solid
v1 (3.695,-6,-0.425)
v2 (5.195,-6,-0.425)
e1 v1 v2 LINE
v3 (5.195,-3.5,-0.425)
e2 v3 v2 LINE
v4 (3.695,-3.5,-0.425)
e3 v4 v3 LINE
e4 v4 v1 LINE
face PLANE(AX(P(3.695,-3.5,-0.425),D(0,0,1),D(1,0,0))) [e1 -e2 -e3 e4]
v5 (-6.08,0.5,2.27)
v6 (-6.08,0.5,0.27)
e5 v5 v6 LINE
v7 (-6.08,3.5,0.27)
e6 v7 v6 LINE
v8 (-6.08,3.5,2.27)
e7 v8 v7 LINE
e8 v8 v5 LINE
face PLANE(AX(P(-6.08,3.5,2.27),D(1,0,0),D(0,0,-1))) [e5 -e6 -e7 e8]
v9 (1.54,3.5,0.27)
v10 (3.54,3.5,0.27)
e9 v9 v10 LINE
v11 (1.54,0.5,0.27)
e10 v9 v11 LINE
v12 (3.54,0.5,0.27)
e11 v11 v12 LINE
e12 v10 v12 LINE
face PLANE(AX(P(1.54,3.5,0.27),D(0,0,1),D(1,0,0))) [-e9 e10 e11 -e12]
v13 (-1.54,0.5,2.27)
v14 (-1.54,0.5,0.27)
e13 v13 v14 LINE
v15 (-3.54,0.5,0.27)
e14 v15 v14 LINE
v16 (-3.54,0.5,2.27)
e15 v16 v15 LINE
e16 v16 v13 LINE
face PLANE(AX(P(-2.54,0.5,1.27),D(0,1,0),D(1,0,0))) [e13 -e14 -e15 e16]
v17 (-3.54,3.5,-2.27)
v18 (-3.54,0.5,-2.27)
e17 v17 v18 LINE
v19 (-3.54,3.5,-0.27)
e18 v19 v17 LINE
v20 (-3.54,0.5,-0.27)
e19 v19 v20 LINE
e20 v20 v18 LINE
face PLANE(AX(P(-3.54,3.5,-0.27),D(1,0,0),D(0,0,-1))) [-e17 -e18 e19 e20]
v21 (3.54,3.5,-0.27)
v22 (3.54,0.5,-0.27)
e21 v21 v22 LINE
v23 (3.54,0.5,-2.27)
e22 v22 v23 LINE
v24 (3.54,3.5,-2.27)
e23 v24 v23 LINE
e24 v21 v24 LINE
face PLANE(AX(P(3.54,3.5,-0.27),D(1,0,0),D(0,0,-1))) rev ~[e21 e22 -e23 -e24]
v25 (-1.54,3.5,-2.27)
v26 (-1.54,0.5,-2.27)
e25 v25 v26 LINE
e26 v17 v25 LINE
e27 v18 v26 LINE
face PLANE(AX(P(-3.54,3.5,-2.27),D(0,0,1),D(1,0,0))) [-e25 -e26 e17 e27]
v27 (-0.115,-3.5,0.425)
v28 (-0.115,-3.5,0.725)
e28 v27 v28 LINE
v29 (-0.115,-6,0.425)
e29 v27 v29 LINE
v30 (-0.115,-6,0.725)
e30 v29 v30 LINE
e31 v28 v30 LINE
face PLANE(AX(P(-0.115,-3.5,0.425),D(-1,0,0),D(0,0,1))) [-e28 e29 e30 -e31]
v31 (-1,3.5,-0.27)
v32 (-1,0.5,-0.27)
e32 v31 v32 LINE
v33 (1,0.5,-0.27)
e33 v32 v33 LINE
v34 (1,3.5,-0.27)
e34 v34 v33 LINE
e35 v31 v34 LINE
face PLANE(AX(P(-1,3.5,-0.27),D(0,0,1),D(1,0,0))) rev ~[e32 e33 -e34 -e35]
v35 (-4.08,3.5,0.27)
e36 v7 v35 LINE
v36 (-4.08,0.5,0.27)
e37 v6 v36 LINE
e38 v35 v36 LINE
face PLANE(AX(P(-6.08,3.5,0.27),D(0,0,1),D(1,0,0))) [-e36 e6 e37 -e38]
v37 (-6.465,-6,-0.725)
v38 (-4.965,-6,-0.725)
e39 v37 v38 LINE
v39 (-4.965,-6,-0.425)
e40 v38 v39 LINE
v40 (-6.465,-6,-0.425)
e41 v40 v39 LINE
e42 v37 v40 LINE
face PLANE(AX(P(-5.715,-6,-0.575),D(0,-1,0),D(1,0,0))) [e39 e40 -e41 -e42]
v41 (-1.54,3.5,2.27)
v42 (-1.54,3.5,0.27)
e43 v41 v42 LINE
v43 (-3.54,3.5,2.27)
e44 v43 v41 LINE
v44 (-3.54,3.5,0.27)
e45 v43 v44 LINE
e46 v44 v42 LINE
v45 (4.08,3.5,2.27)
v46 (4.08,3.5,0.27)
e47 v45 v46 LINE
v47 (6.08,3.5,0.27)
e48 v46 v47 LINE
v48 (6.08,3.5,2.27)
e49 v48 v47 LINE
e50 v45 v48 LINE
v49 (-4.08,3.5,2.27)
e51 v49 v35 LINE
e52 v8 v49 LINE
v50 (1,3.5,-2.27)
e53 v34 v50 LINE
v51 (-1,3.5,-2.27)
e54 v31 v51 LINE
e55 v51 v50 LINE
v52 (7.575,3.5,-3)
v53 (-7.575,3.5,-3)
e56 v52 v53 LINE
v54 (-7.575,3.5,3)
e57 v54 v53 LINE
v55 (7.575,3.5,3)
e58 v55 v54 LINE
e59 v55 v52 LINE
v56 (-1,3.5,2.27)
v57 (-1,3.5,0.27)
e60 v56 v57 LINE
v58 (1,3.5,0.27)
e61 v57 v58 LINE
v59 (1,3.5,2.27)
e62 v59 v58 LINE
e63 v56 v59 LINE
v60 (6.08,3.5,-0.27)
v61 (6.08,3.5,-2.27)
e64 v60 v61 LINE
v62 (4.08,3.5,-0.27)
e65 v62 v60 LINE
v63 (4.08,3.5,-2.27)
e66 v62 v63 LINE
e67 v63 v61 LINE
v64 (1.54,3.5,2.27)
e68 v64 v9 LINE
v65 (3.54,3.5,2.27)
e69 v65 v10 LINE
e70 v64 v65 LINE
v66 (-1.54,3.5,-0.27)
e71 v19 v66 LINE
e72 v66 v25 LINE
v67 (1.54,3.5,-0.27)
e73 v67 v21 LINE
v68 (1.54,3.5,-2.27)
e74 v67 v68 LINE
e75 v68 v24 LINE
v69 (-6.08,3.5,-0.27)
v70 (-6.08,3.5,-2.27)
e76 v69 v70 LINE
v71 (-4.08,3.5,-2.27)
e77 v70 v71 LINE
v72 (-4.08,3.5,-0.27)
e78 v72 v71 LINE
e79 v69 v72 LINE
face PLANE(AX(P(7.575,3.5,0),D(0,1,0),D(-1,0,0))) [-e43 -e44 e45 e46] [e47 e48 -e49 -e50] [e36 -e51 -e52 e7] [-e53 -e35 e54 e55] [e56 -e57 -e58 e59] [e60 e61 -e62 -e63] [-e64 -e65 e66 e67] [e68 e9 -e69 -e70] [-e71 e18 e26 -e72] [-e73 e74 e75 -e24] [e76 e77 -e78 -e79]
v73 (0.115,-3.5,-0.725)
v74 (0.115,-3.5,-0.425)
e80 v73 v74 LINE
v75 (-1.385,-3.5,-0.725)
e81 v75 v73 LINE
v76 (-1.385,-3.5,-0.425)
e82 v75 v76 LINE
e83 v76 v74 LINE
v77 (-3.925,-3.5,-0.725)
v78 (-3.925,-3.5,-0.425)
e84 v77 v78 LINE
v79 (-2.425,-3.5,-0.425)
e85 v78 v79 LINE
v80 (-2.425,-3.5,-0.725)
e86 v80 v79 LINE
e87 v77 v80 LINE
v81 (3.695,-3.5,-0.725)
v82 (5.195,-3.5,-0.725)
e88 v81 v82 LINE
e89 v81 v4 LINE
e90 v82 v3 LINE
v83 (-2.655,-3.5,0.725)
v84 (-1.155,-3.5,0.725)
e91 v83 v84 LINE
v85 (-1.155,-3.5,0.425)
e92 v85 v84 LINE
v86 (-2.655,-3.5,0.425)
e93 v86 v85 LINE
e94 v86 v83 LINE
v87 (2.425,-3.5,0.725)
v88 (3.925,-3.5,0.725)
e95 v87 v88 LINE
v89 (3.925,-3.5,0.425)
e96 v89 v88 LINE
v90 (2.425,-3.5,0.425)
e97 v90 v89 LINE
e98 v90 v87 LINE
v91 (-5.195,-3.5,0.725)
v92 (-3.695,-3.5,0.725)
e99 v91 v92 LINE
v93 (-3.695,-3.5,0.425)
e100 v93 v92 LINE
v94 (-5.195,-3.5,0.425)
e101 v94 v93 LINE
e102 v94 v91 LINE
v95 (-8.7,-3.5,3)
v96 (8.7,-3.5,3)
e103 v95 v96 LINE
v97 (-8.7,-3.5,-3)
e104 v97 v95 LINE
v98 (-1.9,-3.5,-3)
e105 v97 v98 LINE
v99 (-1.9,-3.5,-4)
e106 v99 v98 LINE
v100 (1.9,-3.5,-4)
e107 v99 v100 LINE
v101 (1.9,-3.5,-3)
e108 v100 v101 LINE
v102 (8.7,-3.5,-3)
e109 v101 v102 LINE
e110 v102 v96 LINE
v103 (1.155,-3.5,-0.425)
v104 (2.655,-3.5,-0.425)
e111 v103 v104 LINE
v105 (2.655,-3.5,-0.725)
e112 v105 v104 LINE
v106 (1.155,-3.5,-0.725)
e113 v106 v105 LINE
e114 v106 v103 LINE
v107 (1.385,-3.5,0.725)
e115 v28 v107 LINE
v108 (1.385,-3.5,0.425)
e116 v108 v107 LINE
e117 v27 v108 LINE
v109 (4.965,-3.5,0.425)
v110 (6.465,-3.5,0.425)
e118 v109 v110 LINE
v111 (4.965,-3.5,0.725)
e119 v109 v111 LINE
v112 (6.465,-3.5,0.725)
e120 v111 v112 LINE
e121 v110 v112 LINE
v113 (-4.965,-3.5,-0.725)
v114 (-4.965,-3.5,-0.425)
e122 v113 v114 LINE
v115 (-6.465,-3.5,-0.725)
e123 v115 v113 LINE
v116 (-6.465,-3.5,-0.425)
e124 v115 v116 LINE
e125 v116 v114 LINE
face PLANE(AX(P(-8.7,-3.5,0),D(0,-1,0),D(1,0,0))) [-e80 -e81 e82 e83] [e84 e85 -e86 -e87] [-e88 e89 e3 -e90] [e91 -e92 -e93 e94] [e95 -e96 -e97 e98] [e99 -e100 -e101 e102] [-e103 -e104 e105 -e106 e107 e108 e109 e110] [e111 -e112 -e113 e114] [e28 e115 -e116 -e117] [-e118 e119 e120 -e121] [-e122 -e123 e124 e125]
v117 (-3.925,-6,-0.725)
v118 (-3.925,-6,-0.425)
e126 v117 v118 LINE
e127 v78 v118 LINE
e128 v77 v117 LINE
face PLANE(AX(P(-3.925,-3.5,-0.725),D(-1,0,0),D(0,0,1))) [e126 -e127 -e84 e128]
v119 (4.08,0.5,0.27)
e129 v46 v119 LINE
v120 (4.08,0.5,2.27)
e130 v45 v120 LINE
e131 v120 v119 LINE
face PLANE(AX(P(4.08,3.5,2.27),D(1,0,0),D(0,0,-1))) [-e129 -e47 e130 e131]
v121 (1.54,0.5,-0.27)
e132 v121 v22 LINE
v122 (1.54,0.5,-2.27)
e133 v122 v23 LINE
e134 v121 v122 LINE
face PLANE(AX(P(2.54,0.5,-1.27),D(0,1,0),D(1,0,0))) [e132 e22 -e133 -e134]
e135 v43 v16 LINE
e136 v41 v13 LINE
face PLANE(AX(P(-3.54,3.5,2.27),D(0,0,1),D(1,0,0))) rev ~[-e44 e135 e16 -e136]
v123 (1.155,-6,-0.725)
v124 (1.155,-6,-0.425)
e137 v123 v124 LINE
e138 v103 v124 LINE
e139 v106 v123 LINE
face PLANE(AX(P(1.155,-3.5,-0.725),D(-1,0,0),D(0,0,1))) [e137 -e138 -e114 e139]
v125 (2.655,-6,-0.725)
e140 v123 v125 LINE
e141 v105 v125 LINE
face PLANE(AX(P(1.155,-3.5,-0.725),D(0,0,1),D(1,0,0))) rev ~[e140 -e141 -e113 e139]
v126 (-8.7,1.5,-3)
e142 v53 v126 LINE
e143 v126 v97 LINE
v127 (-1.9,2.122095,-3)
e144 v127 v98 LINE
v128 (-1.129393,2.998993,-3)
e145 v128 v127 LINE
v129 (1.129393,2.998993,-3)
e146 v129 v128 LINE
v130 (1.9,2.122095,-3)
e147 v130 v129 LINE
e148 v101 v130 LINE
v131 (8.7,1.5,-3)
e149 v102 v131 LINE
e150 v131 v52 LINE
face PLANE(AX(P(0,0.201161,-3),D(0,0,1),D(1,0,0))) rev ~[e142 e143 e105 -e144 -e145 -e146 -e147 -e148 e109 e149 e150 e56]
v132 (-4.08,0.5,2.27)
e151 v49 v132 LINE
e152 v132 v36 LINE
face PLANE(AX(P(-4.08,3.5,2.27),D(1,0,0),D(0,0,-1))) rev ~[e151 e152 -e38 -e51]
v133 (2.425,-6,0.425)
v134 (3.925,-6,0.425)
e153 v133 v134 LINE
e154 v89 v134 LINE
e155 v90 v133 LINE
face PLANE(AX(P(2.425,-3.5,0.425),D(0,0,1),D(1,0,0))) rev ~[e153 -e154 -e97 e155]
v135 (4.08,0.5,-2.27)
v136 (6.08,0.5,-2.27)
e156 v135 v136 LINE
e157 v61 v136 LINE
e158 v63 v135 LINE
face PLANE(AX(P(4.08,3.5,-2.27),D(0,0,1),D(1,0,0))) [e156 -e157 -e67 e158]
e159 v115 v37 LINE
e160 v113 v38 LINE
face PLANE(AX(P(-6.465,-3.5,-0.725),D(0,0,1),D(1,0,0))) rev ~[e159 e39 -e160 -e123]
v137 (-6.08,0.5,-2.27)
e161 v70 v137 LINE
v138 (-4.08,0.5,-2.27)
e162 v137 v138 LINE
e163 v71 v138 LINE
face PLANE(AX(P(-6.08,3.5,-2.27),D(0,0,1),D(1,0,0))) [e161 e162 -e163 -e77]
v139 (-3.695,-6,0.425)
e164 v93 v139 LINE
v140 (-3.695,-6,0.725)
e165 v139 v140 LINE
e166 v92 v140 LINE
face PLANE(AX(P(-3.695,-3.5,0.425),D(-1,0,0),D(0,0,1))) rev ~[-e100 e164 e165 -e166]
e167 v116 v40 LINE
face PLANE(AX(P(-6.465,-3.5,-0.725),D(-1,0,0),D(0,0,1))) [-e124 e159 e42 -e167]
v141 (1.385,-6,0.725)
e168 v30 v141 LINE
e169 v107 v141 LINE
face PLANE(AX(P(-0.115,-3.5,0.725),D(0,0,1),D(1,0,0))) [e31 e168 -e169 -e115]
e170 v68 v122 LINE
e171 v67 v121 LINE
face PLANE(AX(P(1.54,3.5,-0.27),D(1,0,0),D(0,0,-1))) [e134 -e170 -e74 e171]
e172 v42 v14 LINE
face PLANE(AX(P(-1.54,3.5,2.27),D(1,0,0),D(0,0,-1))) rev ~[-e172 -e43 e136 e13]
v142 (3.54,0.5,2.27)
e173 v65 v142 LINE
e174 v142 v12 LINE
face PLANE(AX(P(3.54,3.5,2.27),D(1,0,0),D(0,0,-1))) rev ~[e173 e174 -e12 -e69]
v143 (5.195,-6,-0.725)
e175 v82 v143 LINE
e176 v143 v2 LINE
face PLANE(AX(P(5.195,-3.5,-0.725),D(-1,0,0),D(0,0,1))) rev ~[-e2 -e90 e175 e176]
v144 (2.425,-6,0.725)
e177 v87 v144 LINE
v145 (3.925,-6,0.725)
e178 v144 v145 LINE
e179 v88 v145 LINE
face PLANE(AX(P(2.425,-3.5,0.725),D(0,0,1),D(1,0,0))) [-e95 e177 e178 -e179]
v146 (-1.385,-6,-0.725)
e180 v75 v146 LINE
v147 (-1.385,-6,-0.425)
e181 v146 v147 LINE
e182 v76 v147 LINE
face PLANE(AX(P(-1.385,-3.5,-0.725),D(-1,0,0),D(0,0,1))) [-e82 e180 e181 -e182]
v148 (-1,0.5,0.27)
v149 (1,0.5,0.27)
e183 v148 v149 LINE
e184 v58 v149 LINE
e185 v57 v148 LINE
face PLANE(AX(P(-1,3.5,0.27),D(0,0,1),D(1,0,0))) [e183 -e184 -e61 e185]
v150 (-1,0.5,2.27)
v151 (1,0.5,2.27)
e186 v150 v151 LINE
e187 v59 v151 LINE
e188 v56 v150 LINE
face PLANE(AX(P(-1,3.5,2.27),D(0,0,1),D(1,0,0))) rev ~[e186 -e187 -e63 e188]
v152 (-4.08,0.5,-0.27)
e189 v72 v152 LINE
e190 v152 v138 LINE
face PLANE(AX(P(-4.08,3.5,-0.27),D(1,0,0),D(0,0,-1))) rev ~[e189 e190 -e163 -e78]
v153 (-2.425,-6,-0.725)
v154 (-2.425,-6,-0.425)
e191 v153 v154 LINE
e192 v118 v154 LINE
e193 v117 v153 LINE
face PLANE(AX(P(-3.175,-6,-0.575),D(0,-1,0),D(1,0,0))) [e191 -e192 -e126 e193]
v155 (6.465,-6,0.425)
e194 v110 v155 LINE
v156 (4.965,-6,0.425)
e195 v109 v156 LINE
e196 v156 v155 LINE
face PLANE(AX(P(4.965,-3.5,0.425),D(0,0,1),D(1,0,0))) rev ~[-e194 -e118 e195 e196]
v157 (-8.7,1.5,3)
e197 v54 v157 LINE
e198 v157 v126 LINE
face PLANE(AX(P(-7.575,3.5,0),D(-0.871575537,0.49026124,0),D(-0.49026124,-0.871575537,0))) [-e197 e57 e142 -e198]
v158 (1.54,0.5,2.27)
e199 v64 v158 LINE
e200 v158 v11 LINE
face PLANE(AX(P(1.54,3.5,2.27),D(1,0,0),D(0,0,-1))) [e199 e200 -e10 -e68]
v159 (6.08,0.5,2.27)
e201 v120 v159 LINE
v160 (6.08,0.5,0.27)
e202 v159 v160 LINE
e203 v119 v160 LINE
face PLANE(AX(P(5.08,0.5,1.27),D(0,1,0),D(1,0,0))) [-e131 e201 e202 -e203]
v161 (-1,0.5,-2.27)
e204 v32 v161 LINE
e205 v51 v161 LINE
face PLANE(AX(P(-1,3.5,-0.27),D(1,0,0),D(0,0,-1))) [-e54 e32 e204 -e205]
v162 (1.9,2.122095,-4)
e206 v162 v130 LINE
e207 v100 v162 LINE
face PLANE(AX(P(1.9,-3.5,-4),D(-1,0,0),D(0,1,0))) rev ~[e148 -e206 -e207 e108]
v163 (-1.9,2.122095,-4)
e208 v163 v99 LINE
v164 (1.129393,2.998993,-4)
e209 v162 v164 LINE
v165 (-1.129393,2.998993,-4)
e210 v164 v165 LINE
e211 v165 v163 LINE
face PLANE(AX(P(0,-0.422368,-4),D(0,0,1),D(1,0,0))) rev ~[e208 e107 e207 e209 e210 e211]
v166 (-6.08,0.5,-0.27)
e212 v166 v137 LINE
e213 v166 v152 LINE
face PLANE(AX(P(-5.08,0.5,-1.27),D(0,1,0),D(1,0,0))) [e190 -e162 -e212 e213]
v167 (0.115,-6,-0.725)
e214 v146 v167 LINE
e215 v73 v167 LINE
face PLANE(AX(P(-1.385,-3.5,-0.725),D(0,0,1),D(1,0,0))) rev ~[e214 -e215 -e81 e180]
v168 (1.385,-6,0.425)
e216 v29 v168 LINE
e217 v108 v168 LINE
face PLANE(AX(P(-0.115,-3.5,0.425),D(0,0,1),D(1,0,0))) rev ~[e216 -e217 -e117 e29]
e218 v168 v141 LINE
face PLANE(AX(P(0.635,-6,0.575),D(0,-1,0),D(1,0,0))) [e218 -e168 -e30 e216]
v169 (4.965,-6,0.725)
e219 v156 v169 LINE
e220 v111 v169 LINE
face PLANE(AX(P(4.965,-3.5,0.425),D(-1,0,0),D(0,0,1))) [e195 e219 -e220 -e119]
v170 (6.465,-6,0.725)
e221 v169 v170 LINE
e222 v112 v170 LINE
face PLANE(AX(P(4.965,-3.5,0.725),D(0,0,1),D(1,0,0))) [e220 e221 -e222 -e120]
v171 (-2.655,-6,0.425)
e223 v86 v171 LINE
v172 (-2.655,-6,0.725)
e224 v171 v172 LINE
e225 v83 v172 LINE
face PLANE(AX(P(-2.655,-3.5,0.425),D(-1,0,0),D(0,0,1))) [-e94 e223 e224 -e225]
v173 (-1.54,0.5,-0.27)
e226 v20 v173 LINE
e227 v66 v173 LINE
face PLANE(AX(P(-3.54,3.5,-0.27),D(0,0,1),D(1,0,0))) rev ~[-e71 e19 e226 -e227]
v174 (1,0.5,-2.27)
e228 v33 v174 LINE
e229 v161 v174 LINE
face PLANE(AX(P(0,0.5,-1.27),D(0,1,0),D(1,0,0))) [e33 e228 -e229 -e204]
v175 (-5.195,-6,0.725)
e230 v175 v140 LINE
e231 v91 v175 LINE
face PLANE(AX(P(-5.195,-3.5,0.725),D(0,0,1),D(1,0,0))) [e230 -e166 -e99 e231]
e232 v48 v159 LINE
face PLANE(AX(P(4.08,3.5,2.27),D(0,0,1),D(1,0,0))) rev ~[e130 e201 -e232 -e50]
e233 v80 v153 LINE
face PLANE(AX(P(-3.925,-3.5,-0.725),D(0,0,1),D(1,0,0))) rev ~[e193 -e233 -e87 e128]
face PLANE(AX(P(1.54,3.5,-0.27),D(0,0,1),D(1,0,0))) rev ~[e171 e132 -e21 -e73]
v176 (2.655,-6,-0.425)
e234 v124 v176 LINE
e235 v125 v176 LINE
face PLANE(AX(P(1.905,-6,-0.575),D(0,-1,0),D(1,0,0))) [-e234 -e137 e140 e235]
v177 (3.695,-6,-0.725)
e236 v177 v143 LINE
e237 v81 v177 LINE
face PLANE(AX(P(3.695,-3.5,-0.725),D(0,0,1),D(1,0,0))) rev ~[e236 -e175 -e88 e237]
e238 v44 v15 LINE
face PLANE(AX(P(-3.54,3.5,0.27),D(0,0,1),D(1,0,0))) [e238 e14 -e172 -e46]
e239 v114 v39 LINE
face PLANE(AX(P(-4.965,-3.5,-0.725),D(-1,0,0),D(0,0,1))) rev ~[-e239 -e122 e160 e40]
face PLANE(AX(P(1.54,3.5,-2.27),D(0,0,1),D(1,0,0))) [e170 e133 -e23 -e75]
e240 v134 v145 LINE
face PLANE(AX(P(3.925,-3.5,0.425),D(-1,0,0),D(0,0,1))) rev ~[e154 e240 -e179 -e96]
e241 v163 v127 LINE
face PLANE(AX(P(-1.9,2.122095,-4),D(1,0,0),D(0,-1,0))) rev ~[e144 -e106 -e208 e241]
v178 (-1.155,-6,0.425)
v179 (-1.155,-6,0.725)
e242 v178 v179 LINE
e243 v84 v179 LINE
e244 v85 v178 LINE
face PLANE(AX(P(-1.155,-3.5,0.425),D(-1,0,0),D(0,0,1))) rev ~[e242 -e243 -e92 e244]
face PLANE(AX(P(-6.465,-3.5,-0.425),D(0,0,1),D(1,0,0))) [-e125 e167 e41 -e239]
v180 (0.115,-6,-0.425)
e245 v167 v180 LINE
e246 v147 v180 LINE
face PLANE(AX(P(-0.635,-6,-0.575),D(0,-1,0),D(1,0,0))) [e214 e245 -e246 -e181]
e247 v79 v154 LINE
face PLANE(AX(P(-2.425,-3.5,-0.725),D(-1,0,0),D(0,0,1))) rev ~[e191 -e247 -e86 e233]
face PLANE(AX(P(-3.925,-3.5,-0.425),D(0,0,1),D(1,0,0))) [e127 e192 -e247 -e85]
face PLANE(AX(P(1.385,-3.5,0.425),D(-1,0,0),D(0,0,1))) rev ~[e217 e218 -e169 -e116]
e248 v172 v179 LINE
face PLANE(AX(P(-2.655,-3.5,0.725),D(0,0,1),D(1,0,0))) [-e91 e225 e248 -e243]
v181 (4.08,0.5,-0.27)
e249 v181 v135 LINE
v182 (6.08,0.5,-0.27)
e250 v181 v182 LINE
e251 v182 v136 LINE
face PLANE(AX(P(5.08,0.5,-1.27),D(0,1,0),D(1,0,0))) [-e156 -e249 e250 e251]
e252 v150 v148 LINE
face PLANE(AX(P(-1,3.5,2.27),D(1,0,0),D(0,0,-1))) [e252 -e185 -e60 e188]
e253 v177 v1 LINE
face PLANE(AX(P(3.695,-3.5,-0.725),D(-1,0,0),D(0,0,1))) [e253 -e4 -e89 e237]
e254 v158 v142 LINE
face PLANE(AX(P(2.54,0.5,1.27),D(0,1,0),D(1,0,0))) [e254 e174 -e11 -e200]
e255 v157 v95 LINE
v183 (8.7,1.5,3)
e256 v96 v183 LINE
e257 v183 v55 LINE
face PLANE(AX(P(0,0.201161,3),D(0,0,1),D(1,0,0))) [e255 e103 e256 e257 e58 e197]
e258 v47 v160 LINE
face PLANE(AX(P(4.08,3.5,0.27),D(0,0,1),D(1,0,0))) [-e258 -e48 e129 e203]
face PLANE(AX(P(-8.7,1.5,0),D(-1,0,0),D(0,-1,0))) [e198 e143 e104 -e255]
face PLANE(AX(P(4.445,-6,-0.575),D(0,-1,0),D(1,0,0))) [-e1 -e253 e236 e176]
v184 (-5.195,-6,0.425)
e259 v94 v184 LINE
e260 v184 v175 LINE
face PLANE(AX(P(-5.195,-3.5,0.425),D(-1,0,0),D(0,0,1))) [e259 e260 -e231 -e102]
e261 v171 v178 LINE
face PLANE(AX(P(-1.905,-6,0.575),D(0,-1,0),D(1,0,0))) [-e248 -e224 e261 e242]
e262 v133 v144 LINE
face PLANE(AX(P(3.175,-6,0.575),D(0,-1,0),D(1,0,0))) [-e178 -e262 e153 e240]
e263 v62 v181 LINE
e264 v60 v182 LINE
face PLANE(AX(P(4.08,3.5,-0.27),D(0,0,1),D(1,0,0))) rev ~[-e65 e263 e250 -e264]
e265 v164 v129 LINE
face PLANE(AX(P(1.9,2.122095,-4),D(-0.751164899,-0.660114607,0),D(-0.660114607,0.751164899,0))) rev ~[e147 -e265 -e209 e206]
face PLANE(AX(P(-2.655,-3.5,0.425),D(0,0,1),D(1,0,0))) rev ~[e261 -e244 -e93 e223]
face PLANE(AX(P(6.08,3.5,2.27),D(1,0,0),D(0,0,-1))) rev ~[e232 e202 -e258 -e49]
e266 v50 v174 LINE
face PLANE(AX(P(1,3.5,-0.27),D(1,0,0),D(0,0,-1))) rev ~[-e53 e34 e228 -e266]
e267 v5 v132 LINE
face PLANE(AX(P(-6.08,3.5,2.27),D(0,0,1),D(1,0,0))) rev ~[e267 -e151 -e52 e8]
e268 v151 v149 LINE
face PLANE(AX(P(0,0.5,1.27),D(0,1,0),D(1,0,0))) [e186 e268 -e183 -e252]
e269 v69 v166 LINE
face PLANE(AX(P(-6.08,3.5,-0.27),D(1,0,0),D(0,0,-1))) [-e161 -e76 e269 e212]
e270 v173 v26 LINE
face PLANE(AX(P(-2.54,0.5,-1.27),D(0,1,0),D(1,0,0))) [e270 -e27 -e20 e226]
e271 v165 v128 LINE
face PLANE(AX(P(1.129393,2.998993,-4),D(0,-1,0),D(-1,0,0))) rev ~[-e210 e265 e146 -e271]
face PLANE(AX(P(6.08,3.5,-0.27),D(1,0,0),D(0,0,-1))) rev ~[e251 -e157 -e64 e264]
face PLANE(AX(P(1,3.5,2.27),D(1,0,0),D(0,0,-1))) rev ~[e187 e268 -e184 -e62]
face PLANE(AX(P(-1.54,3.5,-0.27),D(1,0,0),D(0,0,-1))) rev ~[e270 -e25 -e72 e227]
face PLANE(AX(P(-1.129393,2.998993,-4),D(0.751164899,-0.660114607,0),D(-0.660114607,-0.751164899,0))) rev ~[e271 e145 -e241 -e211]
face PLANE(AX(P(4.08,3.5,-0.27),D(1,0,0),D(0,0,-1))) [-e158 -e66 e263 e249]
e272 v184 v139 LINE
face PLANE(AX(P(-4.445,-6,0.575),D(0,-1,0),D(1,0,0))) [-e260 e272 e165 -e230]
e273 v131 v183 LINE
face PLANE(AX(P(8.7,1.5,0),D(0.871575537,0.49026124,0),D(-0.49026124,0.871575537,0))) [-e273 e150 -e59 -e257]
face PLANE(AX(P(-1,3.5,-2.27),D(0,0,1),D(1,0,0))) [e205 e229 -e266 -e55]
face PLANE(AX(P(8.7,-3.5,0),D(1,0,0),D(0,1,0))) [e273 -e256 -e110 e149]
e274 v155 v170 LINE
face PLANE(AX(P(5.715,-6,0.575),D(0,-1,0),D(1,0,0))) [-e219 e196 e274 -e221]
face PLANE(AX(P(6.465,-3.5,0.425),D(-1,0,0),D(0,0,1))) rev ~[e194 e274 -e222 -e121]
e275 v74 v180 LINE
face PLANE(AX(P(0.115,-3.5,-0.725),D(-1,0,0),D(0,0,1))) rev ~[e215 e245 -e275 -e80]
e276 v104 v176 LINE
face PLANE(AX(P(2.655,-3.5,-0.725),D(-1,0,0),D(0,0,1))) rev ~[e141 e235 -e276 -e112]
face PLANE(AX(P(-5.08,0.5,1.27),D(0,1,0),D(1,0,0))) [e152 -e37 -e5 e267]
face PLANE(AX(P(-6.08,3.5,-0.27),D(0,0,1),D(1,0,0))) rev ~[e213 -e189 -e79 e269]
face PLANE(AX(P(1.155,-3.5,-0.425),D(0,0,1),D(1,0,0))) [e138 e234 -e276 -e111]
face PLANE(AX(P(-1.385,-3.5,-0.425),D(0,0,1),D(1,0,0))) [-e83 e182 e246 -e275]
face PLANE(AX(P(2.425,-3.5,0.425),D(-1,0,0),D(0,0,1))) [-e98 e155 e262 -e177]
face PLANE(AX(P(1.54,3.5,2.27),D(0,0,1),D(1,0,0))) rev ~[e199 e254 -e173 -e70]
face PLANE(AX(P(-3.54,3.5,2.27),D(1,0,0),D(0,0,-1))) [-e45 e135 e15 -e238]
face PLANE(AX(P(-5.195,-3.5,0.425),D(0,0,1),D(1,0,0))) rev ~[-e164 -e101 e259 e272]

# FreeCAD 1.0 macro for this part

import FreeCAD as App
import Part
import Sketcher
Q = App.Units.Quantity

doc = App.newDocument("Part")
body = doc.addObject("PartDesign::Body", "Body")

sketch1 = body.newObject("Sketcher::SketchObject", "Sketch")
sketch1.AttachmentSupport = (doc.getObject("XY_Plane"), [""])
sketch1.MapMode = "FlatFace"
sketch1.addGeometry(Part.LineSegment(App.Vector(-8.7, 1.5, 0), App.Vector(-8.7, -3.5, 0)), False)
sketch1.addGeometry(Part.LineSegment(App.Vector(-8.7, -3.5, 0), App.Vector(8.7, -3.5, 0)), False)
sketch1.addGeometry(Part.LineSegment(App.Vector(8.7, -3.5, 0), App.Vector(8.7, 1.5, 0)), False)
sketch1.addGeometry(Part.LineSegment(App.Vector(8.7, 1.5, 0), App.Vector(7.6, 3.5, 0)), False)
sketch1.addGeometry(Part.LineSegment(App.Vector(7.6, 3.5, 0), App.Vector(-7.6, 3.5, 0)), False)
sketch1.addGeometry(Part.LineSegment(App.Vector(-7.6, 3.5, 0), App.Vector(-8.7, 1.5, 0)), False)
sketch1.addConstraint(Sketcher.Constraint("Coincident", 0, 2, 1, 1))
sketch1.addConstraint(Sketcher.Constraint("Coincident", 1, 2, 2, 1))
sketch1.addConstraint(Sketcher.Constraint("Coincident", 2, 2, 3, 1))
sketch1.addConstraint(Sketcher.Constraint("Coincident", 3, 2, 4, 1))
sketch1.addConstraint(Sketcher.Constraint("Coincident", 4, 2, 5, 1))
sketch1.addConstraint(Sketcher.Constraint("Coincident", 5, 2, 0, 1))
sketch1.addConstraint(Sketcher.Constraint("Vertical", 0))
sketch1.addConstraint(Sketcher.Constraint("Horizontal", 1))
sketch1.addConstraint(Sketcher.Constraint("Vertical", 2))
sketch1.addConstraint(Sketcher.Constraint("Horizontal", 4))
sketch1.addConstraint(Sketcher.Constraint("Symmetric", 2, 2, 5, 2, -2))
sketch1.addConstraint(Sketcher.Constraint("Equal", 3, 5))
sketch1.addConstraint(Sketcher.Constraint("DistanceY", 0, 2, 0, 1, Q("5 mm")))
sketch1.addConstraint(Sketcher.Constraint("DistanceX", 1, 1, 1, 2, Q("17.4 mm")))
sketch1.addConstraint(Sketcher.Constraint("DistanceY", 2, 2, 3, 2, Q("2 mm")))
sketch1.addConstraint(Sketcher.Constraint("DistanceX", 4, 2, 4, 1, Q("15.15 mm")))
sketch1.addConstraint(Sketcher.Constraint("DistanceY", 0, 2, -1, 1, Q("3.5 mm")))
pad1 = body.newObject("PartDesign::Pad", "Pad")
pad1.Profile = sketch1
pad1.Length = 6
pad1.Midplane = True

sketch2 = body.newObject("Sketcher::SketchObject", "Sketch001")
sketch2.AttachmentSupport = (doc.getObject("XY_Plane"), [""])
sketch2.MapMode = "FlatFace"
sketch2.AttachmentOffset = App.Placement(App.Vector(0, 0, -4), App.Rotation())
sketch2.addGeometry(Part.LineSegment(App.Vector(-1.9, 2.1, 0), App.Vector(-1.9, -3.5, 0)), False)
sketch2.addGeometry(Part.LineSegment(App.Vector(-1.9, -3.5, 0), App.Vector(1.9, -3.5, 0)), False)
sketch2.addGeometry(Part.LineSegment(App.Vector(1.9, -3.5, 0), App.Vector(1.9, 2.1, 0)), False)
sketch2.addGeometry(Part.LineSegment(App.Vector(1.9, 2.1, 0), App.Vector(1.1, 3, 0)), False)
sketch2.addGeometry(Part.LineSegment(App.Vector(1.1, 3, 0), App.Vector(-1.1, 3, 0)), False)
sketch2.addGeometry(Part.LineSegment(App.Vector(-1.1, 3, 0), App.Vector(-1.9, 2.1, 0)), False)
sketch2.addConstraint(Sketcher.Constraint("Coincident", 0, 2, 1, 1))
sketch2.addConstraint(Sketcher.Constraint("Coincident", 1, 2, 2, 1))
sketch2.addConstraint(Sketcher.Constraint("Coincident", 2, 2, 3, 1))
sketch2.addConstraint(Sketcher.Constraint("Coincident", 3, 2, 4, 1))
sketch2.addConstraint(Sketcher.Constraint("Coincident", 4, 2, 5, 1))
sketch2.addConstraint(Sketcher.Constraint("Coincident", 5, 2, 0, 1))
sketch2.addConstraint(Sketcher.Constraint("Vertical", 0))
sketch2.addConstraint(Sketcher.Constraint("Horizontal", 1))
sketch2.addConstraint(Sketcher.Constraint("Vertical", 2))
sketch2.addConstraint(Sketcher.Constraint("Horizontal", 4))
sketch2.addConstraint(Sketcher.Constraint("Symmetric", 2, 2, 5, 2, -2))
sketch2.addConstraint(Sketcher.Constraint("Equal", 3, 5))
sketch2.addConstraint(Sketcher.Constraint("DistanceX", 1, 1, 1, 2, Q("3.8 mm")))
sketch2.addConstraint(Sketcher.Constraint("DistanceY", 0, 2, -1, 1, Q("3.5 mm")))
sketch2.addConstraint(Sketcher.Constraint("DistanceY", 2, 2, 3, 2, Q("0.876898 mm")))
sketch2.addConstraint(Sketcher.Constraint("DistanceX", 4, 2, 4, 1, Q("2.258785 mm")))
sketch2.addConstraint(Sketcher.Constraint("DistanceY", 0, 2, 0, 1, Q("5.622095 mm")))
pad2 = body.newObject("PartDesign::Pad", "Pad001")
pad2.Profile = sketch2
pad2.Length = 1

sketch3 = body.newObject("Sketcher::SketchObject", "Sketch002")
sketch3.AttachmentSupport = (doc.getObject("XZ_Plane"), [""])
sketch3.MapMode = "FlatFace"
sketch3.AttachmentOffset = App.Placement(App.Vector(0, 0, -3.5), App.Rotation())
sketch3.addGeometry(Part.LineSegment(App.Vector(-1, -2.3, 0), App.Vector(-1, -0.3, 0)), False)
sketch3.addGeometry(Part.LineSegment(App.Vector(-1, -0.3, 0), App.Vector(1, -0.3, 0)), False)
sketch3.addGeometry(Part.LineSegment(App.Vector(1, -0.3, 0), App.Vector(1, -2.3, 0)), False)
sketch3.addGeometry(Part.LineSegment(App.Vector(1, -2.3, 0), App.Vector(-1, -2.3, 0)), False)
sketch3.addGeometry(Part.LineSegment(App.Vector(-1, 0.3, 0), App.Vector(-1, 2.3, 0)), False)
sketch3.addGeometry(Part.LineSegment(App.Vector(-1, 2.3, 0), App.Vector(1, 2.3, 0)), False)
sketch3.addGeometry(Part.LineSegment(App.Vector(1, 2.3, 0), App.Vector(1, 0.3, 0)), False)
sketch3.addGeometry(Part.LineSegment(App.Vector(1, 0.3, 0), App.Vector(-1, 0.3, 0)), False)
sketch3.addGeometry(Part.LineSegment(App.Vector(1.5, -2.3, 0), App.Vector(1.5, -0.3, 0)), False)
sketch3.addGeometry(Part.LineSegment(App.Vector(1.5, -0.3, 0), App.Vector(3.5, -0.3, 0)), False)
sketch3.addGeometry(Part.LineSegment(App.Vector(3.5, -0.3, 0), App.Vector(3.5, -2.3, 0)), False)
sketch3.addGeometry(Part.LineSegment(App.Vector(3.5, -2.3, 0), App.Vector(1.5, -2.3, 0)), False)
sketch3.addGeometry(Part.LineSegment(App.Vector(1.5, 0.3, 0), App.Vector(1.5, 2.3, 0)), False)
sketch3.addGeometry(Part.LineSegment(App.Vector(1.5, 2.3, 0), App.Vector(3.5, 2.3, 0)), False)
sketch3.addGeometry(Part.LineSegment(App.Vector(3.5, 2.3, 0), App.Vector(3.5, 0.3, 0)), False)
sketch3.addGeometry(Part.LineSegment(App.Vector(3.5, 0.3, 0), App.Vector(1.5, 0.3, 0)), False)
sketch3.addGeometry(Part.LineSegment(App.Vector(-3.5, -2.3, 0), App.Vector(-3.5, -0.3, 0)), False)
sketch3.addGeometry(Part.LineSegment(App.Vector(-3.5, -0.3, 0), App.Vector(-1.5, -0.3, 0)), False)
sketch3.addGeometry(Part.LineSegment(App.Vector(-1.5, -0.3, 0), App.Vector(-1.5, -2.3, 0)), False)
sketch3.addGeometry(Part.LineSegment(App.Vector(-1.5, -2.3, 0), App.Vector(-3.5, -2.3, 0)), False)
sketch3.addGeometry(Part.LineSegment(App.Vector(-3.5, 0.3, 0), App.Vector(-3.5, 2.3, 0)), False)
sketch3.addGeometry(Part.LineSegment(App.Vector(-3.5, 2.3, 0), App.Vector(-1.5, 2.3, 0)), False)
sketch3.addGeometry(Part.LineSegment(App.Vector(-1.5, 2.3, 0), App.Vector(-1.5, 0.3, 0)), False)
sketch3.addGeometry(Part.LineSegment(App.Vector(-1.5, 0.3, 0), App.Vector(-3.5, 0.3, 0)), False)
sketch3.addGeometry(Part.LineSegment(App.Vector(-6.1, -2.3, 0), App.Vector(-6.1, -0.3, 0)), False)
sketch3.addGeometry(Part.LineSegment(App.Vector(-6.1, -0.3, 0), App.Vector(-4.1, -0.3, 0)), False)
sketch3.addGeometry(Part.LineSegment(App.Vector(-4.1, -0.3, 0), App.Vector(-4.1, -2.3, 0)), False)
sketch3.addGeometry(Part.LineSegment(App.Vector(-4.1, -2.3, 0), App.Vector(-6.1, -2.3, 0)), False)
sketch3.addGeometry(Part.LineSegment(App.Vector(-6.1, 0.3, 0), App.Vector(-6.1, 2.3, 0)), False)
sketch3.addGeometry(Part.LineSegment(App.Vector(-6.1, 2.3, 0), App.Vector(-4.1, 2.3, 0)), False)
sketch3.addGeometry(Part.LineSegment(App.Vector(-4.1, 2.3, 0), App.Vector(-4.1, 0.3, 0)), False)
sketch3.addGeometry(Part.LineSegment(App.Vector(-4.1, 0.3, 0), App.Vector(-6.1, 0.3, 0)), False)
sketch3.addGeometry(Part.LineSegment(App.Vector(4.1, -2.3, 0), App.Vector(4.1, -0.3, 0)), False)
sketch3.addGeometry(Part.LineSegment(App.Vector(4.1, -0.3, 0), App.Vector(6.1, -0.3, 0)), False)
sketch3.addGeometry(Part.LineSegment(App.Vector(6.1, -0.3, 0), App.Vector(6.1, -2.3, 0)), False)
sketch3.addGeometry(Part.LineSegment(App.Vector(6.1, -2.3, 0), App.Vector(4.1, -2.3, 0)), False)
sketch3.addGeometry(Part.LineSegment(App.Vector(4.1, 0.3, 0), App.Vector(4.1, 2.3, 0)), False)
sketch3.addGeometry(Part.LineSegment(App.Vector(4.1, 2.3, 0), App.Vector(6.1, 2.3, 0)), False)
sketch3.addGeometry(Part.LineSegment(App.Vector(6.1, 2.3, 0), App.Vector(6.1, 0.3, 0)), False)
sketch3.addGeometry(Part.LineSegment(App.Vector(6.1, 0.3, 0), App.Vector(4.1, 0.3, 0)), False)
sketch3.addConstraint(Sketcher.Constraint("Coincident", 0, 2, 1, 1))
sketch3.addConstraint(Sketcher.Constraint("Coincident", 1, 2, 2, 1))
sketch3.addConstraint(Sketcher.Constraint("Coincident", 2, 2, 3, 1))
sketch3.addConstraint(Sketcher.Constraint("Coincident", 3, 2, 0, 1))
sketch3.addConstraint(Sketcher.Constraint("Coincident", 4, 2, 5, 1))
sketch3.addConstraint(Sketcher.Constraint("Coincident", 5, 2, 6, 1))
sketch3.addConstraint(Sketcher.Constraint("Coincident", 6, 2, 7, 1))
sketch3.addConstraint(Sketcher.Constraint("Coincident", 7, 2, 4, 1))
sketch3.addConstraint(Sketcher.Constraint("Coincident", 8, 2, 9, 1))
sketch3.addConstraint(Sketcher.Constraint("Coincident", 9, 2, 10, 1))
sketch3.addConstraint(Sketcher.Constraint("Coincident", 10, 2, 11, 1))
sketch3.addConstraint(Sketcher.Constraint("Coincident", 11, 2, 8, 1))
sketch3.addConstraint(Sketcher.Constraint("Coincident", 12, 2, 13, 1))
sketch3.addConstraint(Sketcher.Constraint("Coincident", 13, 2, 14, 1))
sketch3.addConstraint(Sketcher.Constraint("Coincident", 14, 2, 15, 1))
sketch3.addConstraint(Sketcher.Constraint("Coincident", 15, 2, 12, 1))
sketch3.addConstraint(Sketcher.Constraint("Coincident", 16, 2, 17, 1))
sketch3.addConstraint(Sketcher.Constraint("Coincident", 17, 2, 18, 1))
sketch3.addConstraint(Sketcher.Constraint("Coincident", 18, 2, 19, 1))
sketch3.addConstraint(Sketcher.Constraint("Coincident", 19, 2, 16, 1))
sketch3.addConstraint(Sketcher.Constraint("Coincident", 20, 2, 21, 1))
sketch3.addConstraint(Sketcher.Constraint("Coincident", 21, 2, 22, 1))
sketch3.addConstraint(Sketcher.Constraint("Coincident", 22, 2, 23, 1))
sketch3.addConstraint(Sketcher.Constraint("Coincident", 23, 2, 20, 1))
sketch3.addConstraint(Sketcher.Constraint("Coincident", 24, 2, 25, 1))
sketch3.addConstraint(Sketcher.Constraint("Coincident", 25, 2, 26, 1))
sketch3.addConstraint(Sketcher.Constraint("Coincident", 26, 2, 27, 1))
sketch3.addConstraint(Sketcher.Constraint("Coincident", 27, 2, 24, 1))
sketch3.addConstraint(Sketcher.Constraint("Coincident", 28, 2, 29, 1))
sketch3.addConstraint(Sketcher.Constraint("Coincident", 29, 2, 30, 1))
sketch3.addConstraint(Sketcher.Constraint("Coincident", 30, 2, 31, 1))
sketch3.addConstraint(Sketcher.Constraint("Coincident", 31, 2, 28, 1))
sketch3.addConstraint(Sketcher.Constraint("Coincident", 32, 2, 33, 1))
sketch3.addConstraint(Sketcher.Constraint("Coincident", 33, 2, 34, 1))
sketch3.addConstraint(Sketcher.Constraint("Coincident", 34, 2, 35, 1))
sketch3.addConstraint(Sketcher.Constraint("Coincident", 35, 2, 32, 1))
sketch3.addConstraint(Sketcher.Constraint("Coincident", 36, 2, 37, 1))
sketch3.addConstraint(Sketcher.Constraint("Coincident", 37, 2, 38, 1))
sketch3.addConstraint(Sketcher.Constraint("Coincident", 38, 2, 39, 1))
sketch3.addConstraint(Sketcher.Constraint("Coincident", 39, 2, 36, 1))
sketch3.addConstraint(Sketcher.Constraint("Vertical", 0))
sketch3.addConstraint(Sketcher.Constraint("Horizontal", 1))
sketch3.addConstraint(Sketcher.Constraint("Vertical", 2))
sketch3.addConstraint(Sketcher.Constraint("Horizontal", 3))
sketch3.addConstraint(Sketcher.Constraint("Vertical", 4))
sketch3.addConstraint(Sketcher.Constraint("Horizontal", 5))
sketch3.addConstraint(Sketcher.Constraint("Vertical", 6))
sketch3.addConstraint(Sketcher.Constraint("Horizontal", 7))
sketch3.addConstraint(Sketcher.Constraint("Vertical", 8))
sketch3.addConstraint(Sketcher.Constraint("Horizontal", 9))
sketch3.addConstraint(Sketcher.Constraint("Vertical", 10))
sketch3.addConstraint(Sketcher.Constraint("Horizontal", 11))
sketch3.addConstraint(Sketcher.Constraint("Vertical", 12))
sketch3.addConstraint(Sketcher.Constraint("Horizontal", 13))
sketch3.addConstraint(Sketcher.Constraint("Vertical", 14))
sketch3.addConstraint(Sketcher.Constraint("Horizontal", 15))
sketch3.addConstraint(Sketcher.Constraint("Vertical", 16))
sketch3.addConstraint(Sketcher.Constraint("Horizontal", 17))
sketch3.addConstraint(Sketcher.Constraint("Vertical", 18))
sketch3.addConstraint(Sketcher.Constraint("Horizontal", 19))
sketch3.addConstraint(Sketcher.Constraint("Vertical", 20))
sketch3.addConstraint(Sketcher.Constraint("Horizontal", 21))
sketch3.addConstraint(Sketcher.Constraint("Vertical", 22))
sketch3.addConstraint(Sketcher.Constraint("Horizontal", 23))
sketch3.addConstraint(Sketcher.Constraint("Vertical", 24))
sketch3.addConstraint(Sketcher.Constraint("Horizontal", 25))
sketch3.addConstraint(Sketcher.Constraint("Vertical", 26))
sketch3.addConstraint(Sketcher.Constraint("Horizontal", 27))
sketch3.addConstraint(Sketcher.Constraint("Vertical", 28))
sketch3.addConstraint(Sketcher.Constraint("Horizontal", 29))
sketch3.addConstraint(Sketcher.Constraint("Vertical", 30))
sketch3.addConstraint(Sketcher.Constraint("Horizontal", 31))
sketch3.addConstraint(Sketcher.Constraint("Vertical", 32))
sketch3.addConstraint(Sketcher.Constraint("Horizontal", 33))
sketch3.addConstraint(Sketcher.Constraint("Vertical", 34))
sketch3.addConstraint(Sketcher.Constraint("Horizontal", 35))
sketch3.addConstraint(Sketcher.Constraint("Vertical", 36))
sketch3.addConstraint(Sketcher.Constraint("Horizontal", 37))
sketch3.addConstraint(Sketcher.Constraint("Vertical", 38))
sketch3.addConstraint(Sketcher.Constraint("Horizontal", 39))
sketch3.addConstraint(Sketcher.Constraint("Symmetric", 2, 2, 4, 2, -1, 1))
sketch3.addConstraint(Sketcher.Constraint("Symmetric", 0, 2, 6, 2, -1, 1))
sketch3.addConstraint(Sketcher.Constraint("Symmetric", 14, 2, 16, 2, -1, 1))
sketch3.addConstraint(Sketcher.Constraint("Symmetric", 12, 2, 18, 2, -1, 1))
sketch3.addConstraint(Sketcher.Constraint("Symmetric", 10, 2, 20, 2, -1, 1))
sketch3.addConstraint(Sketcher.Constraint("Symmetric", 8, 2, 22, 2, -1, 1))
sketch3.addConstraint(Sketcher.Constraint("Symmetric", 30, 2, 32, 2, -1, 1))
sketch3.addConstraint(Sketcher.Constraint("Symmetric", 28, 2, 34, 2, -1, 1))
sketch3.addConstraint(Sketcher.Constraint("Symmetric", 26, 2, 36, 2, -1, 1))
sketch3.addConstraint(Sketcher.Constraint("Symmetric", 24, 2, 38, 2, -1, 1))
sketch3.addConstraint(Sketcher.Constraint("Symmetric", 9, 2, 16, 2, -2))
sketch3.addConstraint(Sketcher.Constraint("Symmetric", 11, 2, 18, 2, -2))
sketch3.addConstraint(Sketcher.Constraint("Symmetric", 25, 2, 32, 2, -2))
sketch3.addConstraint(Sketcher.Constraint("Symmetric", 27, 2, 34, 2, -2))
sketch3.addConstraint(Sketcher.Constraint("Horizontal", 1, 2, 8, 2))
sketch3.addConstraint(Sketcher.Constraint("Horizontal", 3, 2, 10, 2))
sketch3.addConstraint(Sketcher.Constraint("Horizontal", 17, 2, 24, 2))
sketch3.addConstraint(Sketcher.Constraint("Horizontal", 19, 2, 26, 2))
sketch3.addConstraint(Sketcher.Constraint("Vertical", 3, 2, 4, 2))
sketch3.addConstraint(Sketcher.Constraint("Equal", 7, 9))
sketch3.addConstraint(Sketcher.Constraint("Equal", 23, 25))
sketch3.addConstraint(Sketcher.Constraint("Equal", 39, 0))
sketch3.addConstraint(Sketcher.Constraint("DistanceX", 1, 1, 1, 2, Q("2 mm")))
sketch3.addConstraint(Sketcher.Constraint("DistanceY", 0, 2, -1, 1, Q("0.27 mm")))
sketch3.addConstraint(Sketcher.Constraint("DistanceX", -1, 1, 8, 2, Q("1.54 mm")))
sketch3.addConstraint(Sketcher.Constraint("DistanceX", 24, 2, -1, 1, Q("6.08 mm")))
pocket1 = body.newObject("PartDesign::Pocket", "Pocket")
pocket1.Profile = sketch3
pocket1.Length = 3
pocket1.Reversed = True

sketch4 = body.newObject("Sketcher::SketchObject", "Sketch003")
sketch4.AttachmentSupport = (doc.getObject("XZ_Plane"), [""])
sketch4.MapMode = "FlatFace"
sketch4.AttachmentOffset = App.Placement(App.Vector(0, 0, 3.5), App.Rotation())
sketch4.addGeometry(Part.LineSegment(App.Vector(-3.92, -0.42, 0), App.Vector(-3.92, -0.72, 0)), False)
sketch4.addGeometry(Part.LineSegment(App.Vector(-3.92, -0.72, 0), App.Vector(-2.42, -0.72, 0)), False)
sketch4.addGeometry(Part.LineSegment(App.Vector(-2.42, -0.72, 0), App.Vector(-2.42, -0.42, 0)), False)
sketch4.addGeometry(Part.LineSegment(App.Vector(-2.42, -0.42, 0), App.Vector(-3.92, -0.42, 0)), False)
sketch4.addGeometry(Part.LineSegment(App.Vector(-2.65, 0.72, 0), App.Vector(-2.65, 0.42, 0)), False)
sketch4.addGeometry(Part.LineSegment(App.Vector(-2.65, 0.42, 0), App.Vector(-1.16, 0.42, 0)), False)
sketch4.addGeometry(Part.LineSegment(App.Vector(-1.16, 0.42, 0), App.Vector(-1.16, 0.72, 0)), False)
sketch4.addGeometry(Part.LineSegment(App.Vector(-1.16, 0.72, 0), App.Vector(-2.65, 0.72, 0)), False)
sketch4.addGeometry(Part.LineSegment(App.Vector(-1.39, -0.42, 0), App.Vector(-1.39, -0.72, 0)), False)
sketch4.addGeometry(Part.LineSegment(App.Vector(-1.39, -0.72, 0), App.Vector(0.12, -0.72, 0)), False)
sketch4.addGeometry(Part.LineSegment(App.Vector(0.12, -0.72, 0), App.Vector(0.12, -0.42, 0)), False)
sketch4.addGeometry(Part.LineSegment(App.Vector(0.12, -0.42, 0), App.Vector(-1.39, -0.42, 0)), False)
sketch4.addGeometry(Part.LineSegment(App.Vector(-0.12, 0.72, 0), App.Vector(-0.12, 0.42, 0)), False)
sketch4.addGeometry(Part.LineSegment(App.Vector(-0.12, 0.42, 0), App.Vector(1.39, 0.42, 0)), False)
sketch4.addGeometry(Part.LineSegment(App.Vector(1.39, 0.42, 0), App.Vector(1.39, 0.72, 0)), False)
sketch4.addGeometry(Part.LineSegment(App.Vector(1.39, 0.72, 0), App.Vector(-0.12, 0.72, 0)), False)
sketch4.addGeometry(Part.LineSegment(App.Vector(1.16, -0.42, 0), App.Vector(1.16, -0.72, 0)), False)
sketch4.addGeometry(Part.LineSegment(App.Vector(1.16, -0.72, 0), App.Vector(2.65, -0.72, 0)), False)
sketch4.addGeometry(Part.LineSegment(App.Vector(2.65, -0.72, 0), App.Vector(2.65, -0.42, 0)), False)
sketch4.addGeometry(Part.LineSegment(App.Vector(2.65, -0.42, 0), App.Vector(1.16, -0.42, 0)), False)
sketch4.addGeometry(Part.LineSegment(App.Vector(2.42, 0.72, 0), App.Vector(2.42, 0.42, 0)), False)
sketch4.addGeometry(Part.LineSegment(App.Vector(2.42, 0.42, 0), App.Vector(3.92, 0.42, 0)), False)
sketch4.addGeometry(Part.LineSegment(App.Vector(3.92, 0.42, 0), App.Vector(3.92, 0.72, 0)), False)
sketch4.addGeometry(Part.LineSegment(App.Vector(3.92, 0.72, 0), App.Vector(2.42, 0.72, 0)), False)
sketch4.addGeometry(Part.LineSegment(App.Vector(-5.2, 0.72, 0), App.Vector(-5.2, 0.42, 0)), False)
sketch4.addGeometry(Part.LineSegment(App.Vector(-5.2, 0.42, 0), App.Vector(-3.69, 0.42, 0)), False)
sketch4.addGeometry(Part.LineSegment(App.Vector(-3.69, 0.42, 0), App.Vector(-3.69, 0.72, 0)), False)
sketch4.addGeometry(Part.LineSegment(App.Vector(-3.69, 0.72, 0), App.Vector(-5.2, 0.72, 0)), False)
sketch4.addGeometry(Part.LineSegment(App.Vector(-6.46, -0.42, 0), App.Vector(-6.46, -0.72, 0)), False)
sketch4.addGeometry(Part.LineSegment(App.Vector(-6.46, -0.72, 0), App.Vector(-4.96, -0.72, 0)), False)
sketch4.addGeometry(Part.LineSegment(App.Vector(-4.96, -0.72, 0), App.Vector(-4.96, -0.42, 0)), False)
sketch4.addGeometry(Part.LineSegment(App.Vector(-4.96, -0.42, 0), App.Vector(-6.46, -0.42, 0)), False)
sketch4.addGeometry(Part.LineSegment(App.Vector(4.96, 0.72, 0), App.Vector(4.96, 0.42, 0)), False)
sketch4.addGeometry(Part.LineSegment(App.Vector(4.96, 0.42, 0), App.Vector(6.46, 0.42, 0)), False)
sketch4.addGeometry(Part.LineSegment(App.Vector(6.46, 0.42, 0), App.Vector(6.46, 0.72, 0)), False)
sketch4.addGeometry(Part.LineSegment(App.Vector(6.46, 0.72, 0), App.Vector(4.96, 0.72, 0)), False)
sketch4.addGeometry(Part.LineSegment(App.Vector(3.69, -0.42, 0), App.Vector(3.69, -0.72, 0)), False)
sketch4.addGeometry(Part.LineSegment(App.Vector(3.69, -0.72, 0), App.Vector(5.2, -0.72, 0)), False)
sketch4.addGeometry(Part.LineSegment(App.Vector(5.2, -0.72, 0), App.Vector(5.2, -0.42, 0)), False)
sketch4.addGeometry(Part.LineSegment(App.Vector(5.2, -0.42, 0), App.Vector(3.69, -0.42, 0)), False)
sketch4.addConstraint(Sketcher.Constraint("Coincident", 0, 2, 1, 1))
sketch4.addConstraint(Sketcher.Constraint("Coincident", 1, 2, 2, 1))
sketch4.addConstraint(Sketcher.Constraint("Coincident", 2, 2, 3, 1))
sketch4.addConstraint(Sketcher.Constraint("Coincident", 3, 2, 0, 1))
sketch4.addConstraint(Sketcher.Constraint("Coincident", 4, 2, 5, 1))
sketch4.addConstraint(Sketcher.Constraint("Coincident", 5, 2, 6, 1))
sketch4.addConstraint(Sketcher.Constraint("Coincident", 6, 2, 7, 1))
sketch4.addConstraint(Sketcher.Constraint("Coincident", 7, 2, 4, 1))
sketch4.addConstraint(Sketcher.Constraint("Coincident", 8, 2, 9, 1))
sketch4.addConstraint(Sketcher.Constraint("Coincident", 9, 2, 10, 1))
sketch4.addConstraint(Sketcher.Constraint("Coincident", 10, 2, 11, 1))
sketch4.addConstraint(Sketcher.Constraint("Coincident", 11, 2, 8, 1))
sketch4.addConstraint(Sketcher.Constraint("Coincident", 12, 2, 13, 1))
sketch4.addConstraint(Sketcher.Constraint("Coincident", 13, 2, 14, 1))
sketch4.addConstraint(Sketcher.Constraint("Coincident", 14, 2, 15, 1))
sketch4.addConstraint(Sketcher.Constraint("Coincident", 15, 2, 12, 1))
sketch4.addConstraint(Sketcher.Constraint("Coincident", 16, 2, 17, 1))
sketch4.addConstraint(Sketcher.Constraint("Coincident", 17, 2, 18, 1))
sketch4.addConstraint(Sketcher.Constraint("Coincident", 18, 2, 19, 1))
sketch4.addConstraint(Sketcher.Constraint("Coincident", 19, 2, 16, 1))
sketch4.addConstraint(Sketcher.Constraint("Coincident", 20, 2, 21, 1))
sketch4.addConstraint(Sketcher.Constraint("Coincident", 21, 2, 22, 1))
sketch4.addConstraint(Sketcher.Constraint("Coincident", 22, 2, 23, 1))
sketch4.addConstraint(Sketcher.Constraint("Coincident", 23, 2, 20, 1))
sketch4.addConstraint(Sketcher.Constraint("Coincident", 24, 2, 25, 1))
sketch4.addConstraint(Sketcher.Constraint("Coincident", 25, 2, 26, 1))
sketch4.addConstraint(Sketcher.Constraint("Coincident", 26, 2, 27, 1))
sketch4.addConstraint(Sketcher.Constraint("Coincident", 27, 2, 24, 1))
sketch4.addConstraint(Sketcher.Constraint("Coincident", 28, 2, 29, 1))
sketch4.addConstraint(Sketcher.Constraint("Coincident", 29, 2, 30, 1))
sketch4.addConstraint(Sketcher.Constraint("Coincident", 30, 2, 31, 1))
sketch4.addConstraint(Sketcher.Constraint("Coincident", 31, 2, 28, 1))
sketch4.addConstraint(Sketcher.Constraint("Coincident", 32, 2, 33, 1))
sketch4.addConstraint(Sketcher.Constraint("Coincident", 33, 2, 34, 1))
sketch4.addConstraint(Sketcher.Constraint("Coincident", 34, 2, 35, 1))
sketch4.addConstraint(Sketcher.Constraint("Coincident", 35, 2, 32, 1))
sketch4.addConstraint(Sketcher.Constraint("Coincident", 36, 2, 37, 1))
sketch4.addConstraint(Sketcher.Constraint("Coincident", 37, 2, 38, 1))
sketch4.addConstraint(Sketcher.Constraint("Coincident", 38, 2, 39, 1))
sketch4.addConstraint(Sketcher.Constraint("Coincident", 39, 2, 36, 1))
sketch4.addConstraint(Sketcher.Constraint("Vertical", 0))
sketch4.addConstraint(Sketcher.Constraint("Horizontal", 1))
sketch4.addConstraint(Sketcher.Constraint("Vertical", 2))
sketch4.addConstraint(Sketcher.Constraint("Horizontal", 3))
sketch4.addConstraint(Sketcher.Constraint("Vertical", 4))
sketch4.addConstraint(Sketcher.Constraint("Horizontal", 5))
sketch4.addConstraint(Sketcher.Constraint("Vertical", 6))
sketch4.addConstraint(Sketcher.Constraint("Horizontal", 7))
sketch4.addConstraint(Sketcher.Constraint("Vertical", 8))
sketch4.addConstraint(Sketcher.Constraint("Horizontal", 9))
sketch4.addConstraint(Sketcher.Constraint("Vertical", 10))
sketch4.addConstraint(Sketcher.Constraint("Horizontal", 11))
sketch4.addConstraint(Sketcher.Constraint("Vertical", 12))
sketch4.addConstraint(Sketcher.Constraint("Horizontal", 13))
sketch4.addConstraint(Sketcher.Constraint("Vertical", 14))
sketch4.addConstraint(Sketcher.Constraint("Horizontal", 15))
sketch4.addConstraint(Sketcher.Constraint("Vertical", 16))
sketch4.addConstraint(Sketcher.Constraint("Horizontal", 17))
sketch4.addConstraint(Sketcher.Constraint("Vertical", 18))
sketch4.addConstraint(Sketcher.Constraint("Horizontal", 19))
sketch4.addConstraint(Sketcher.Constraint("Vertical", 20))
sketch4.addConstraint(Sketcher.Constraint("Horizontal", 21))
sketch4.addConstraint(Sketcher.Constraint("Vertical", 22))
sketch4.addConstraint(Sketcher.Constraint("Horizontal", 23))
sketch4.addConstraint(Sketcher.Constraint("Vertical", 24))
sketch4.addConstraint(Sketcher.Constraint("Horizontal", 25))
sketch4.addConstraint(Sketcher.Constraint("Vertical", 26))
sketch4.addConstraint(Sketcher.Constraint("Horizontal", 27))
sketch4.addConstraint(Sketcher.Constraint("Vertical", 28))
sketch4.addConstraint(Sketcher.Constraint("Horizontal", 29))
sketch4.addConstraint(Sketcher.Constraint("Vertical", 30))
sketch4.addConstraint(Sketcher.Constraint("Horizontal", 31))
sketch4.addConstraint(Sketcher.Constraint("Vertical", 32))
sketch4.addConstraint(Sketcher.Constraint("Horizontal", 33))
sketch4.addConstraint(Sketcher.Constraint("Vertical", 34))
sketch4.addConstraint(Sketcher.Constraint("Horizontal", 35))
sketch4.addConstraint(Sketcher.Constraint("Vertical", 36))
sketch4.addConstraint(Sketcher.Constraint("Horizontal", 37))
sketch4.addConstraint(Sketcher.Constraint("Vertical", 38))
sketch4.addConstraint(Sketcher.Constraint("Horizontal", 39))
sketch4.addConstraint(Sketcher.Constraint("Symmetric", 10, 2, 12, 2, -1, 1))
sketch4.addConstraint(Sketcher.Constraint("Symmetric", 8, 2, 14, 2, -1, 1))
sketch4.addConstraint(Sketcher.Constraint("Symmetric", 6, 2, 16, 2, -1, 1))
sketch4.addConstraint(Sketcher.Constraint("Symmetric", 4, 2, 18, 2, -1, 1))
sketch4.addConstraint(Sketcher.Constraint("Symmetric", 2, 2, 20, 2, -1, 1))
sketch4.addConstraint(Sketcher.Constraint("Symmetric", 0, 2, 22, 2, -1, 1))
sketch4.addConstraint(Sketcher.Constraint("Symmetric", 30, 2, 32, 2, -1, 1))
sketch4.addConstraint(Sketcher.Constraint("Symmetric", 28, 2, 34, 2, -1, 1))
sketch4.addConstraint(Sketcher.Constraint("Symmetric", 26, 2, 36, 2, -1, 1))
sketch4.addConstraint(Sketcher.Constraint("Symmetric", 24, 2, 38, 2, -1, 1))
sketch4.addConstraint(Sketcher.Constraint("Horizontal", 1, 2, 8, 2))
sketch4.addConstraint(Sketcher.Constraint("Horizontal", 3, 2, 10, 2))
sketch4.addConstraint(Sketcher.Constraint("Horizontal", 5, 2, 12, 2))
sketch4.addConstraint(Sketcher.Constraint("Horizontal", 7, 2, 14, 2))
sketch4.addConstraint(Sketcher.Constraint("Horizontal", 21, 2, 24, 2))
sketch4.addConstraint(Sketcher.Constraint("Horizontal", 23, 2, 26, 2))
sketch4.addConstraint(Sketcher.Constraint("Horizontal", 17, 2, 28, 2))
sketch4.addConstraint(Sketcher.Constraint("Horizontal", 19, 2, 30, 2))
sketch4.addConstraint(Sketcher.Constraint("Equal", 3, 5))
sketch4.addConstraint(Sketcher.Constraint("Equal", 7, 9))
sketch4.addConstraint(Sketcher.Constraint("Equal", 23, 25))
sketch4.addConstraint(Sketcher.Constraint("Equal", 27, 29))
sketch4.addConstraint(Sketcher.Constraint("DistanceX", 1, 1, 1, 2, Q("1.5 mm")))
sketch4.addConstraint(Sketcher.Constraint("DistanceY", 0, 2, 0, 1, Q("0.3 mm")))
sketch4.addConstraint(Sketcher.Constraint("DistanceX", 4, 2, 2, 2, Q("0.23 mm")))
sketch4.addConstraint(Sketcher.Constraint("DistanceY", 2, 2, 4, 2, Q("0.85 mm")))
sketch4.addConstraint(Sketcher.Constraint("DistanceX", 1, 2, 8, 2, Q("1.04 mm")))
sketch4.addConstraint(Sketcher.Constraint("DistanceX", 12, 2, 10, 2, Q("0.23 mm")))
sketch4.addConstraint(Sketcher.Constraint("DistanceX", 24, 2, 3, 2, Q("1.27 mm")))
sketch4.addConstraint(Sketcher.Constraint("DistanceX", 28, 2, 24, 2, Q("1.27 mm")))
pad3 = body.newObject("PartDesign::Pad", "Pad002")
pad3.Profile = sketch4
pad3.Length = 2.5

doc.recompute()
